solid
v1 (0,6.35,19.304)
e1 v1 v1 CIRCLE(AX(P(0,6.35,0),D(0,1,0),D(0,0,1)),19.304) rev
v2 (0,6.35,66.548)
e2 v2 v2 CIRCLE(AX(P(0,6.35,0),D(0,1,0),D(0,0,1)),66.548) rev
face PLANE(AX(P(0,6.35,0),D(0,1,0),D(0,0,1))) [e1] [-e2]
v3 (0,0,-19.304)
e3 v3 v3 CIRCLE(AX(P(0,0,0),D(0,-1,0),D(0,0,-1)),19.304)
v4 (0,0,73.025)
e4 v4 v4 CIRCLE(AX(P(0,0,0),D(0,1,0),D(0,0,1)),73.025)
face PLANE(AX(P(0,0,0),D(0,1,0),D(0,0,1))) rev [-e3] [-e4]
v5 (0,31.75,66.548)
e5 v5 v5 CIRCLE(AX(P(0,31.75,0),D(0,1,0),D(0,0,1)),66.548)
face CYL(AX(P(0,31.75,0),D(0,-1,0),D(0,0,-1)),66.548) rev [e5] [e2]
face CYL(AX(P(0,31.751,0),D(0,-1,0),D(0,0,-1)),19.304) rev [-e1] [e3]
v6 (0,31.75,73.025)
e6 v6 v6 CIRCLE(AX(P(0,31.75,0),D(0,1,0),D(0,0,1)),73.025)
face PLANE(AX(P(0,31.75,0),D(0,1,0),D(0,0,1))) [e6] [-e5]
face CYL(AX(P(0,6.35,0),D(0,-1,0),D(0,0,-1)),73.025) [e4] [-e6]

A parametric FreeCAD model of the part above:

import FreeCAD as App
import Part
import Sketcher
from FreeCAD import Vector
Q = App.Units.Quantity

doc = App.newDocument("Part")
params = doc.addObject("Spreadsheet::Sheet", "Params")
for row, (alias, value) in enumerate([
    ("sketch1_diameter", "5.75 in"),
    ("pad1_length", "0.25 in"),
    ("sketch2_diameter", "5.75 in"),
    ("sketch2_diameter2", "5.24 in"),
    ("pad2_length", "1 in"),
    ("sketch3_diameter", "1.52 in"),
], start=1):
    params.set(f"A{row}", alias)
    params.set(f"B{row}", "=" + value)
    params.setAlias(f"B{row}", alias)

body = doc.addObject("PartDesign::Body", "Body")

# Sketch on XZ plane
sketch1 = doc.addObject("Sketcher::SketchObject", "Sketch")
body.addObject(sketch1)
sketch1.AttachmentSupport = (doc.XZ_Plane, [""])
sketch1.MapMode = "FlatFace"
sketch1.addGeometry(Part.Circle(Vector(0, 0, 0), Vector(0, 0, 1), 73), False)
sketch1.addConstraint(Sketcher.Constraint("Coincident", 0, 3, -1, 1))
sketch1.addConstraint(Sketcher.Constraint("Diameter", 0, Q("5.75 in")))
sketch1.setExpression("Constraints[1]", "Params.sketch1_diameter")
pad1 = doc.addObject("PartDesign::Pad", "Pad")
body.addObject(pad1)
pad1.Profile = sketch1
pad1.setExpression("Length", "Params.pad1_length")
pad1.Reversed = True

# Sketch on XZ plane
sketch2 = doc.addObject("Sketcher::SketchObject", "Sketch001")
body.addObject(sketch2)
sketch2.AttachmentSupport = (doc.XZ_Plane, [""])
sketch2.MapMode = "FlatFace"
sketch2.AttachmentOffset = App.Placement(Vector(0, 0, -0.25 * 25.4), App.Rotation())
sketch2.addGeometry(Part.Circle(Vector(0, 0, 0), Vector(0, 0, 1), 73), False)
sketch2.addGeometry(Part.Circle(Vector(0, 0, 0), Vector(0, 0, 1), 67), False)
sketch2.addConstraint(Sketcher.Constraint("Coincident", 0, 3, -1, 1))
sketch2.addConstraint(Sketcher.Constraint("Coincident", 1, 3, -1, 1))
sketch2.addConstraint(Sketcher.Constraint("Diameter", 0, Q("5.75 in")))
sketch2.addConstraint(Sketcher.Constraint("Diameter", 1, Q("5.24 in")))
sketch2.setExpression("Constraints[2]", "Params.sketch2_diameter")
sketch2.setExpression("Constraints[3]", "Params.sketch2_diameter2")
pad2 = doc.addObject("PartDesign::Pad", "Pad001")
body.addObject(pad2)
pad2.Profile = sketch2
pad2.setExpression("Length", "Params.pad2_length")
pad2.Reversed = True

# Sketch on XZ plane
sketch3 = doc.addObject("Sketcher::SketchObject", "Sketch002")
body.addObject(sketch3)
sketch3.AttachmentSupport = (doc.XZ_Plane, [""])
sketch3.MapMode = "FlatFace"
sketch3.addGeometry(Part.Circle(Vector(0, 0, 0), Vector(0, 0, 1), 19), False)
sketch3.addConstraint(Sketcher.Constraint("Coincident", 0, 3, -1, 1))
sketch3.addConstraint(Sketcher.Constraint("Diameter", 0, Q("1.52 in")))
sketch3.setExpression("Constraints[1]", "Params.sketch3_diameter")
pocket1 = doc.addObject("PartDesign::Pocket", "Pocket")
body.addObject(pocket1)
pocket1.Profile = sketch3
pocket1.Type = "UpToFirst"

doc.recompute()
